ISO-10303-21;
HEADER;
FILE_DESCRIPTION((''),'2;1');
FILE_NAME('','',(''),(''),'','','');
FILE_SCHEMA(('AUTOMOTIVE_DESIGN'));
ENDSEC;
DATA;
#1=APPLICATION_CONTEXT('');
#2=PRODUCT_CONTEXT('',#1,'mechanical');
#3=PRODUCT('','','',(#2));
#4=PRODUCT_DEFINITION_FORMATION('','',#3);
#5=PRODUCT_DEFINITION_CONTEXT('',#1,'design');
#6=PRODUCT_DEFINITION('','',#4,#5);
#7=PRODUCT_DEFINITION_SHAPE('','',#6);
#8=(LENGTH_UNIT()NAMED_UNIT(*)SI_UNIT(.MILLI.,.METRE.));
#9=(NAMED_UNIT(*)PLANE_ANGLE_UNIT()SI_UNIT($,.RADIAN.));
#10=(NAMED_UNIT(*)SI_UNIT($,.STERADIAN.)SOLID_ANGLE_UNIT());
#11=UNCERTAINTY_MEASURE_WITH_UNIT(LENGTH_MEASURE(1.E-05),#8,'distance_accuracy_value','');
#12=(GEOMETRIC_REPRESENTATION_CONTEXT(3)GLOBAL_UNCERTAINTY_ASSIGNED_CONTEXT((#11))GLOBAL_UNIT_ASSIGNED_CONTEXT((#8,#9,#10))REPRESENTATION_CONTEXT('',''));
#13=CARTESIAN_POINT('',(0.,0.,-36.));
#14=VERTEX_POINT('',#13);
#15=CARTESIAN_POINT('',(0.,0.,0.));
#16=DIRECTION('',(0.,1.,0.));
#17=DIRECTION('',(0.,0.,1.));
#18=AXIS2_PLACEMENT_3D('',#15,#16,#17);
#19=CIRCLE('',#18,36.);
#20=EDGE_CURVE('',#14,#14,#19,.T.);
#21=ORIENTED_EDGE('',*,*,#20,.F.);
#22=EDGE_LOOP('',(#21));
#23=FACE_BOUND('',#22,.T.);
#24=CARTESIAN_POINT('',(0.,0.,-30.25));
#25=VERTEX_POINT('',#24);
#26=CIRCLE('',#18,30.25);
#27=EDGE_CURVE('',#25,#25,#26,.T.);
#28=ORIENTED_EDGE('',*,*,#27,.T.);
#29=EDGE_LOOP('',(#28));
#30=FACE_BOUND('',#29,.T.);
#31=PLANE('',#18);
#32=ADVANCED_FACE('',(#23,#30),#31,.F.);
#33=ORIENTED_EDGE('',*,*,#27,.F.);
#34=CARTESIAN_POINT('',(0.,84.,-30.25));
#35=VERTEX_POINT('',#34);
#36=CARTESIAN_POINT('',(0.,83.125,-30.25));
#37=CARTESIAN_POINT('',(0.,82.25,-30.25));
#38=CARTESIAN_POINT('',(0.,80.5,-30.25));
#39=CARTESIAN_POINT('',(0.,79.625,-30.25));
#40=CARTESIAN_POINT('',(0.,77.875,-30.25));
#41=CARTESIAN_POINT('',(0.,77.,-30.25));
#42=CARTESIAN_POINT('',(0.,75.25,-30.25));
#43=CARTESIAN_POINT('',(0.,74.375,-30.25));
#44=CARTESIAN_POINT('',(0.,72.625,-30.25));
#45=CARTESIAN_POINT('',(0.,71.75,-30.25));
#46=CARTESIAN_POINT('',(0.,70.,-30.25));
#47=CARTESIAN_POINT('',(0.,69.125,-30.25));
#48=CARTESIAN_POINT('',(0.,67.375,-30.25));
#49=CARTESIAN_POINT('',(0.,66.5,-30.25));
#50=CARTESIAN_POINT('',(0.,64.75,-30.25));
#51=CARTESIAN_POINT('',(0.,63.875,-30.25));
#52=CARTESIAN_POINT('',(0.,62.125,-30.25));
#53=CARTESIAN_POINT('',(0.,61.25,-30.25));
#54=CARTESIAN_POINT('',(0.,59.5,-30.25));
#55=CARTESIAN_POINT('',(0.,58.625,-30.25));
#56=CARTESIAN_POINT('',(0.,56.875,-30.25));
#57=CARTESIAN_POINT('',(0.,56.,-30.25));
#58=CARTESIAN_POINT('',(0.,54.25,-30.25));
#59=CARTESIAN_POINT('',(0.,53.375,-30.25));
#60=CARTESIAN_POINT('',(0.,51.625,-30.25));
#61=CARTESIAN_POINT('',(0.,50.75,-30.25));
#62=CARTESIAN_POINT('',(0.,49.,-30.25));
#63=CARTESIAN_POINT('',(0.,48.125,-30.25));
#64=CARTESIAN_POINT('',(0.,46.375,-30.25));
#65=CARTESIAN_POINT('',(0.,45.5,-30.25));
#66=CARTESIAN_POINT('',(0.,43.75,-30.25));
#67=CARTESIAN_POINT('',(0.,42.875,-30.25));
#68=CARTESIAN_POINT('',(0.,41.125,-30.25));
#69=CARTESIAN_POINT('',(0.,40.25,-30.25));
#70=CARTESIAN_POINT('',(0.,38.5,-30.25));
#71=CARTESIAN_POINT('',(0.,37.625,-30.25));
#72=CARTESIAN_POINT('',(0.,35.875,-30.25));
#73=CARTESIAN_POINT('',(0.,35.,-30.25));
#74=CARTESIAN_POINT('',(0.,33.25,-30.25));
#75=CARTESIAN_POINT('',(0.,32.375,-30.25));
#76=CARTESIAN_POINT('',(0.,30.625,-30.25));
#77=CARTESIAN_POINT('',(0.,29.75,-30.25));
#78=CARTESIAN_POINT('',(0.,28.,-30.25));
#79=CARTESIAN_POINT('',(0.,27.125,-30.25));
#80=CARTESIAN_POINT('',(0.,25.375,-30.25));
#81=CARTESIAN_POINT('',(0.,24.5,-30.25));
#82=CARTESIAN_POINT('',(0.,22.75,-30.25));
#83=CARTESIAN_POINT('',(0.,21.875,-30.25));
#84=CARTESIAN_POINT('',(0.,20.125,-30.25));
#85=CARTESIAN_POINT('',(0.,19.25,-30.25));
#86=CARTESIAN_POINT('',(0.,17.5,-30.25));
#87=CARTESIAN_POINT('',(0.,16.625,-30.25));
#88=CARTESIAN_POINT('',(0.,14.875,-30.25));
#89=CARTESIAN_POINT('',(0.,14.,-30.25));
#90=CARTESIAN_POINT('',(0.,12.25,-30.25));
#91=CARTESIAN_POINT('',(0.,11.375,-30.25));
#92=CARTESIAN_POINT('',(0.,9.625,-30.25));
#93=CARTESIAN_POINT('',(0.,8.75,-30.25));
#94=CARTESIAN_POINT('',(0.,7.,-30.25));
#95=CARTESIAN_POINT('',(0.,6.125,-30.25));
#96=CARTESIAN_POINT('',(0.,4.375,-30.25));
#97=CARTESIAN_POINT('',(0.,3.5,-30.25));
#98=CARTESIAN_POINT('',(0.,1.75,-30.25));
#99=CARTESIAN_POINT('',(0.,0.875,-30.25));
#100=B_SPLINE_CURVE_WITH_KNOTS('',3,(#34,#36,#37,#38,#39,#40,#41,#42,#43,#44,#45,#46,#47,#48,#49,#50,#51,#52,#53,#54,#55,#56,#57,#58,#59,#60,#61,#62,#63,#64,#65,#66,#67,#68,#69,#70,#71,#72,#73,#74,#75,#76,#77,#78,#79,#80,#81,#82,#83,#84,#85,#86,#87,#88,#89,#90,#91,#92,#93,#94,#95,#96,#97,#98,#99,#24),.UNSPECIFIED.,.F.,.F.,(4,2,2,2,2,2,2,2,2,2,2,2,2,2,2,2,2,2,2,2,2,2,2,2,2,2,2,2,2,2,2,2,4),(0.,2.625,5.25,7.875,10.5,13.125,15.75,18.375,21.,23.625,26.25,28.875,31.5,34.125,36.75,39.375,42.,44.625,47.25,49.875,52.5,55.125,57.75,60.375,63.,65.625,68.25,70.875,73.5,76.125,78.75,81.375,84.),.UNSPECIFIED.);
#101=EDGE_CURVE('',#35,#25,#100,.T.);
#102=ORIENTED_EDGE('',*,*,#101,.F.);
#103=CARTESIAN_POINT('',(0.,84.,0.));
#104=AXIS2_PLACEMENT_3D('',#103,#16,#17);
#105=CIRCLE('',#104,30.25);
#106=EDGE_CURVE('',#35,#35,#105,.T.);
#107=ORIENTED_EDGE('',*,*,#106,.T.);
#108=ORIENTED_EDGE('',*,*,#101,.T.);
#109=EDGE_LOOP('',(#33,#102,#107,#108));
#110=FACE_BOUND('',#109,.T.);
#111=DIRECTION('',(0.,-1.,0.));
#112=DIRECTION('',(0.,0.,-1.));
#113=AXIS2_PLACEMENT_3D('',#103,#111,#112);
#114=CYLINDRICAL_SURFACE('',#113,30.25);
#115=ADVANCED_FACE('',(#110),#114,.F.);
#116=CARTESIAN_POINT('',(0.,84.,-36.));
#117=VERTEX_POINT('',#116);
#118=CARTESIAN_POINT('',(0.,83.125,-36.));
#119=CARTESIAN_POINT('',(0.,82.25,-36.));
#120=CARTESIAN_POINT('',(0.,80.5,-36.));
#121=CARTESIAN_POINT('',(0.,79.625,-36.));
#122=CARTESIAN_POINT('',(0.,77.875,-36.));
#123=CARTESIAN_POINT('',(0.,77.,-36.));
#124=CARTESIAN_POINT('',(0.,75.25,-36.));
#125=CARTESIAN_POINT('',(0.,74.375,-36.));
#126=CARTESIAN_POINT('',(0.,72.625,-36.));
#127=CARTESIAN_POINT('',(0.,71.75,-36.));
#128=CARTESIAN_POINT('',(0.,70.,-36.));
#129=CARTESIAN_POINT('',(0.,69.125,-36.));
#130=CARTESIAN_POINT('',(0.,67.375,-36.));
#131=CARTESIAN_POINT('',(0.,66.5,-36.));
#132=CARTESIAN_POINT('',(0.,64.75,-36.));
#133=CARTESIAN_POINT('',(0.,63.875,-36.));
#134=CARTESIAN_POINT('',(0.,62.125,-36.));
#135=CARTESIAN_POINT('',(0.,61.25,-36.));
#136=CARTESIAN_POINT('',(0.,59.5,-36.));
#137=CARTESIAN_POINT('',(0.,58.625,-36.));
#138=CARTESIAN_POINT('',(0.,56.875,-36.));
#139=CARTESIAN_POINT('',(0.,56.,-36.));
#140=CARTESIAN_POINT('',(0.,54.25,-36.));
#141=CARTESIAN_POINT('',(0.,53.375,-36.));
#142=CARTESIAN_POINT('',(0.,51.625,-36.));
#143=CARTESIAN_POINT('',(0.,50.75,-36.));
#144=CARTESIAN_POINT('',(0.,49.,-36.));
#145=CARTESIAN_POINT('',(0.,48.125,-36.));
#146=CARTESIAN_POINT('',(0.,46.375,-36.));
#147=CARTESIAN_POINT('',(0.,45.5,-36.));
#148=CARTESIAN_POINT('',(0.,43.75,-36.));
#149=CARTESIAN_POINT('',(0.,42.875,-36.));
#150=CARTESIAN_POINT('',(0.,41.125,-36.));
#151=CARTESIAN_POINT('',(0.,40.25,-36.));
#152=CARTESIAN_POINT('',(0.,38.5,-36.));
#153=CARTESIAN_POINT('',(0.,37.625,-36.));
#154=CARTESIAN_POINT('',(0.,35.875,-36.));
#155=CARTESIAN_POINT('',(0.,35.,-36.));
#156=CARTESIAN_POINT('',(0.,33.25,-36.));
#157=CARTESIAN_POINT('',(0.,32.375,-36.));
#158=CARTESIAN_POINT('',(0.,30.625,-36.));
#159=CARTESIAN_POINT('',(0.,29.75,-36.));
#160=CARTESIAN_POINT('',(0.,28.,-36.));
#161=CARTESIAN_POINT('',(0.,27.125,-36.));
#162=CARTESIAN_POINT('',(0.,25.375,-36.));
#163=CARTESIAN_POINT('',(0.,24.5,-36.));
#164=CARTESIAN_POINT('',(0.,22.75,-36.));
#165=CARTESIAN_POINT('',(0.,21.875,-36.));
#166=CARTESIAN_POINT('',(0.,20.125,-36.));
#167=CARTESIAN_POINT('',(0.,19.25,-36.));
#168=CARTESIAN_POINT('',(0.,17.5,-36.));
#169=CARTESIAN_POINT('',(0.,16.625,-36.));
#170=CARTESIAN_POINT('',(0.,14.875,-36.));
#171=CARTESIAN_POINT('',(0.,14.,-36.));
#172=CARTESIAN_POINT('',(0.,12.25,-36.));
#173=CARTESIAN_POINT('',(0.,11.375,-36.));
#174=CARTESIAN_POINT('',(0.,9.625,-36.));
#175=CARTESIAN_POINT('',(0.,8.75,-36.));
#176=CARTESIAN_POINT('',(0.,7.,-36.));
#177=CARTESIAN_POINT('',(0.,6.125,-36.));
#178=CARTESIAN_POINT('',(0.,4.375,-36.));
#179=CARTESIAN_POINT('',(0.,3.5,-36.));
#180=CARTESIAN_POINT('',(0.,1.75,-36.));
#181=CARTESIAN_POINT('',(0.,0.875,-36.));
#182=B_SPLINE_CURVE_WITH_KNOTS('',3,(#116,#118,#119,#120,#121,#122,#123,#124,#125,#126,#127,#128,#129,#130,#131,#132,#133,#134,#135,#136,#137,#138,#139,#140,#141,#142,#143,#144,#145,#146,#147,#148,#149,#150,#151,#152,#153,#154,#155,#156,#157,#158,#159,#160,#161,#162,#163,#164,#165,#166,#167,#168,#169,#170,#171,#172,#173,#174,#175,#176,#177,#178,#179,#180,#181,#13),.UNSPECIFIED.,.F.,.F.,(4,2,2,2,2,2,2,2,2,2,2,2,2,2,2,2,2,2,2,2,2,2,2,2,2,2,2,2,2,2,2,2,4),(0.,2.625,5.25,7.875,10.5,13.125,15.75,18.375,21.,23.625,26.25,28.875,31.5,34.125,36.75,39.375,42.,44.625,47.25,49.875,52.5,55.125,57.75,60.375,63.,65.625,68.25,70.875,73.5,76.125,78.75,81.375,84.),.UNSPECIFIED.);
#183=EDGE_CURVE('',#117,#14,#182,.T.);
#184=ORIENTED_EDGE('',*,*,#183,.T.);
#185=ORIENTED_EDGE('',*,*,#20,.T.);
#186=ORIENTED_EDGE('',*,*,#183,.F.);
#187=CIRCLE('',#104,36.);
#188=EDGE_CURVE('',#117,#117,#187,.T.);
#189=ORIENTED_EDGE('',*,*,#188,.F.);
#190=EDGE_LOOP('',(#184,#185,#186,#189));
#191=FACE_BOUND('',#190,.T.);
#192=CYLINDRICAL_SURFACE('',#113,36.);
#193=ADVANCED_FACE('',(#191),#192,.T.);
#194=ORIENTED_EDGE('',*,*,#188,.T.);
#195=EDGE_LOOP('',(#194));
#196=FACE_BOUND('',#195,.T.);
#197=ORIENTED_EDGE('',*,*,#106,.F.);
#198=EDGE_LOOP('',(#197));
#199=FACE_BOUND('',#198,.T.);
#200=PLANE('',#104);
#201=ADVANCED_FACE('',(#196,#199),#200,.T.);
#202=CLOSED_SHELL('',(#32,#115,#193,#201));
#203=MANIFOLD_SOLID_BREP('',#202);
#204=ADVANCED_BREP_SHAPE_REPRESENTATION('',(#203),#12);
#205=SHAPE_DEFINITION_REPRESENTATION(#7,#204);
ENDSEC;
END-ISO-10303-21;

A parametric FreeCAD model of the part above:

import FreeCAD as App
import Part
import Sketcher
from FreeCAD import Vector
Q = App.Units.Quantity

doc = App.newDocument("Part")
body = doc.addObject("PartDesign::Body", "Body")

# Sketch on XZ plane
sketch1 = body.newObject("Sketcher::SketchObject", "Sketch")
sketch1.AttachmentSupport = (doc.getObject("XZ_Plane"), [""])
sketch1.MapMode = "FlatFace"
sketch1.addGeometry([
    Part.Circle(Vector(0, 0, 0), Vector(0, 0, 1), 36),
    Part.Circle(Vector(0, 0, 0), Vector(0, 0, 1), 30.25),
], False)
sketch1.addConstraint([
    Sketcher.Constraint("Coincident", 0, 3, -1, 1),
    Sketcher.Constraint("Coincident", 1, 3, -1, 1),
    Sketcher.Constraint("Diameter", 0, Q("72 mm")),
    Sketcher.Constraint("Diameter", 1, Q("60.5 mm")),
])
pad1 = body.newObject("PartDesign::Pad", "Pad")
pad1.Profile = sketch1
pad1.Length = 84
pad1.Reversed = True

doc.recompute()
